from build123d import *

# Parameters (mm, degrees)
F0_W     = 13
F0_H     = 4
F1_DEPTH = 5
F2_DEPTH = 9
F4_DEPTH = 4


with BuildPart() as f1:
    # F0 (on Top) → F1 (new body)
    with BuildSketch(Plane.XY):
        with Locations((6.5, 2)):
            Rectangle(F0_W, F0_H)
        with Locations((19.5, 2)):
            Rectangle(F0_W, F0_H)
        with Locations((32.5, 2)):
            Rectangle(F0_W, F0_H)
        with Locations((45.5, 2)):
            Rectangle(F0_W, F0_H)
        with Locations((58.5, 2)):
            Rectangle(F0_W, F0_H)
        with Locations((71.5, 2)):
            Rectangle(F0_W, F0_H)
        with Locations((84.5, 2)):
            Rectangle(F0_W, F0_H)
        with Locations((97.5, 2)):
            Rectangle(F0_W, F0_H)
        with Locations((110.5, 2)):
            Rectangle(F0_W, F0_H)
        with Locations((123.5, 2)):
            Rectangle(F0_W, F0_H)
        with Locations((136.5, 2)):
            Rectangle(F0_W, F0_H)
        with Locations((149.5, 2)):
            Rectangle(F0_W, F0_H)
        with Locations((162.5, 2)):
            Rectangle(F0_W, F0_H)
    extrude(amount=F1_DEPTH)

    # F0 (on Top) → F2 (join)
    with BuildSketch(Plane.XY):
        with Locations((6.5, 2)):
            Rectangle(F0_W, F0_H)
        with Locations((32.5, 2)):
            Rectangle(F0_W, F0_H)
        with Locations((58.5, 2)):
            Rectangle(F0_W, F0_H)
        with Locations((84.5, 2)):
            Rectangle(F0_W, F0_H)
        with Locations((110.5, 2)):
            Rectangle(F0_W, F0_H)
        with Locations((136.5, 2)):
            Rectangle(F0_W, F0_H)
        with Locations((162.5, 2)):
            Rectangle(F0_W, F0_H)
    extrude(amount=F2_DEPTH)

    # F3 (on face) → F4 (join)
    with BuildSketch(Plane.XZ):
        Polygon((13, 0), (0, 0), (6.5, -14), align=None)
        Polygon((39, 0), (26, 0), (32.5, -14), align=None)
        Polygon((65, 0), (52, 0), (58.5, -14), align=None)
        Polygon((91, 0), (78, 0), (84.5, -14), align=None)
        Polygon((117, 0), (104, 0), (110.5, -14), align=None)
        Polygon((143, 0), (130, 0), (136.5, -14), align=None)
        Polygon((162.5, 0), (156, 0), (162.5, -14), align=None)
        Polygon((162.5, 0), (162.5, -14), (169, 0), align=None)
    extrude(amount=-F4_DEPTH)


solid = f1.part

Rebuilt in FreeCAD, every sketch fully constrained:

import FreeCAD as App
import Part
import Sketcher
from FreeCAD import Vector
Q = App.Units.Quantity


def add_polygon(sketch, points):
    """Adds a closed chain of lines whose ends are joined by coincident constraints."""
    first, n = sketch.GeometryCount, len(points)
    for a, b in zip(points, points[1:] + points[:1]):
        sketch.addGeometry(Part.LineSegment(App.Vector(*a, 0), App.Vector(*b, 0)), False)
    for i in range(n):
        sketch.addConstraint(Sketcher.Constraint("Coincident", first + i, 2, first + (i + 1) % n, 1))

doc = App.newDocument("Part")
params = doc.addObject("Spreadsheet::Sheet", "Params")
for row, (alias, value) in enumerate([
    ("sketch1_width", "169 mm"),
    ("sketch1_height", "4 mm"),
    ("pad1_length", "5 mm"),
    ("sketch2_width", "13 mm"),
    ("sketch2_height", "4 mm"),
    ("pad2_length", "9 mm"),
    ("sketch3_width", "13 mm"),
    ("pad3_length", "4 mm"),
], start=1):
    params.set(f"A{row}", alias)
    params.set(f"B{row}", "=" + value)
    params.setAlias(f"B{row}", alias)

body = doc.addObject("PartDesign::Body", "Body")

# Sketch on XY plane
sketch1 = doc.addObject("Sketcher::SketchObject", "Sketch")
body.addObject(sketch1)
sketch1.AttachmentSupport = (doc.XY_Plane, [""])
sketch1.MapMode = "FlatFace"
add_polygon(sketch1, [(0, 4), (0, 0), (169, 0), (169, 4)])  # lines 0-3
sketch1.addConstraint(Sketcher.Constraint("Vertical", 0))
sketch1.addConstraint(Sketcher.Constraint("Horizontal", 1))
sketch1.addConstraint(Sketcher.Constraint("Vertical", 2))
sketch1.addConstraint(Sketcher.Constraint("Horizontal", 3))
sketch1.addConstraint(Sketcher.Constraint("Coincident", 0, 2, -1, 1))
sketch1.addConstraint(Sketcher.Constraint("DistanceX", 1, 1, 1, 2, Q("169 mm")))
sketch1.addConstraint(Sketcher.Constraint("DistanceY", 0, 2, 0, 1, Q("4 mm")))
sketch1.setExpression("Constraints[9]", "Params.sketch1_width")
sketch1.setExpression("Constraints[10]", "Params.sketch1_height")
pad1 = doc.addObject("PartDesign::Pad", "Pad")
body.addObject(pad1)
pad1.Profile = sketch1
pad1.setExpression("Length", "Params.pad1_length")

# Sketch on XY plane
sketch2 = doc.addObject("Sketcher::SketchObject", "Sketch001")
body.addObject(sketch2)
sketch2.AttachmentSupport = (doc.XY_Plane, [""])
sketch2.MapMode = "FlatFace"
add_polygon(sketch2, [(0, 4), (0, 0), (13, 0), (13, 4)])  # lines 0-3
add_polygon(sketch2, [(26, 4), (26, 0), (39, 0), (39, 4)])  # lines 4-7
add_polygon(sketch2, [(52, 4), (52, 0), (65, 0), (65, 4)])  # lines 8-11
add_polygon(sketch2, [(78, 4), (78, 0), (91, 0), (91, 4)])  # lines 12-15
add_polygon(sketch2, [(104, 4), (104, 0), (117, 0), (117, 4)])  # lines 16-19
add_polygon(sketch2, [(130, 4), (130, 0), (143, 0), (143, 4)])  # lines 20-23
add_polygon(sketch2, [(156, 4), (156, 0), (169, 0), (169, 4)])  # lines 24-27
sketch2.addConstraint(Sketcher.Constraint("Vertical", 0))
sketch2.addConstraint(Sketcher.Constraint("Horizontal", 1))
sketch2.addConstraint(Sketcher.Constraint("Vertical", 2))
sketch2.addConstraint(Sketcher.Constraint("Horizontal", 3))
sketch2.addConstraint(Sketcher.Constraint("Vertical", 4))
sketch2.addConstraint(Sketcher.Constraint("Horizontal", 5))
sketch2.addConstraint(Sketcher.Constraint("Vertical", 6))
sketch2.addConstraint(Sketcher.Constraint("Horizontal", 7))
sketch2.addConstraint(Sketcher.Constraint("Vertical", 8))
sketch2.addConstraint(Sketcher.Constraint("Horizontal", 9))
sketch2.addConstraint(Sketcher.Constraint("Vertical", 10))
sketch2.addConstraint(Sketcher.Constraint("Horizontal", 11))
sketch2.addConstraint(Sketcher.Constraint("Vertical", 12))
sketch2.addConstraint(Sketcher.Constraint("Horizontal", 13))
sketch2.addConstraint(Sketcher.Constraint("Vertical", 14))
sketch2.addConstraint(Sketcher.Constraint("Horizontal", 15))
sketch2.addConstraint(Sketcher.Constraint("Vertical", 16))
sketch2.addConstraint(Sketcher.Constraint("Horizontal", 17))
sketch2.addConstraint(Sketcher.Constraint("Vertical", 18))
sketch2.addConstraint(Sketcher.Constraint("Horizontal", 19))
sketch2.addConstraint(Sketcher.Constraint("Vertical", 20))
sketch2.addConstraint(Sketcher.Constraint("Horizontal", 21))
sketch2.addConstraint(Sketcher.Constraint("Vertical", 22))
sketch2.addConstraint(Sketcher.Constraint("Horizontal", 23))
sketch2.addConstraint(Sketcher.Constraint("Vertical", 24))
sketch2.addConstraint(Sketcher.Constraint("Horizontal", 25))
sketch2.addConstraint(Sketcher.Constraint("Vertical", 26))
sketch2.addConstraint(Sketcher.Constraint("Horizontal", 27))
sketch2.addConstraint(Sketcher.Constraint("Coincident", 0, 2, -1, 1))
sketch2.addConstraint(Sketcher.Constraint("PointOnObject", 4, 2, -1))
sketch2.addConstraint(Sketcher.Constraint("PointOnObject", 8, 2, -1))
sketch2.addConstraint(Sketcher.Constraint("PointOnObject", 12, 2, -1))
sketch2.addConstraint(Sketcher.Constraint("PointOnObject", 16, 2, -1))
sketch2.addConstraint(Sketcher.Constraint("PointOnObject", 20, 2, -1))
sketch2.addConstraint(Sketcher.Constraint("PointOnObject", 24, 2, -1))
sketch2.addConstraint(Sketcher.Constraint("Horizontal", 3, 2, 6, 2))
sketch2.addConstraint(Sketcher.Constraint("Horizontal", 7, 2, 10, 2))
sketch2.addConstraint(Sketcher.Constraint("Horizontal", 11, 2, 14, 2))
sketch2.addConstraint(Sketcher.Constraint("Horizontal", 15, 2, 18, 2))
sketch2.addConstraint(Sketcher.Constraint("Horizontal", 19, 2, 22, 2))
sketch2.addConstraint(Sketcher.Constraint("Horizontal", 23, 2, 26, 2))
sketch2.addConstraint(Sketcher.Constraint("Equal", 3, 5))
sketch2.addConstraint(Sketcher.Constraint("Equal", 7, 9))
sketch2.addConstraint(Sketcher.Constraint("Equal", 11, 13))
sketch2.addConstraint(Sketcher.Constraint("Equal", 15, 17))
sketch2.addConstraint(Sketcher.Constraint("Equal", 19, 21))
sketch2.addConstraint(Sketcher.Constraint("Equal", 23, 25))
sketch2.addConstraint(Sketcher.Constraint("DistanceX", 1, 1, 1, 2, Q("13 mm")))
sketch2.addConstraint(Sketcher.Constraint("DistanceY", 0, 2, 0, 1, Q("4 mm")))
sketch2.addConstraint(Sketcher.Constraint("DistanceX", -1, 1, 4, 2, Q("26 mm")))
sketch2.addConstraint(Sketcher.Constraint("DistanceX", -1, 1, 8, 2, Q("52 mm")))
sketch2.addConstraint(Sketcher.Constraint("DistanceX", -1, 1, 12, 2, Q("78 mm")))
sketch2.addConstraint(Sketcher.Constraint("DistanceX", -1, 1, 16, 2, Q("104 mm")))
sketch2.addConstraint(Sketcher.Constraint("DistanceX", -1, 1, 20, 2, Q("130 mm")))
sketch2.addConstraint(Sketcher.Constraint("DistanceX", -1, 1, 24, 2, Q("156 mm")))
sketch2.setExpression("Constraints[75]", "Params.sketch2_width")
sketch2.setExpression("Constraints[76]", "Params.sketch2_height")
pad2 = doc.addObject("PartDesign::Pad", "Pad001")
body.addObject(pad2)
pad2.Profile = sketch2
pad2.setExpression("Length", "Params.pad2_length")

# Sketch on XZ plane
sketch3 = doc.addObject("Sketcher::SketchObject", "Sketch002")
body.addObject(sketch3)
sketch3.AttachmentSupport = (doc.XZ_Plane, [""])
sketch3.MapMode = "FlatFace"
add_polygon(sketch3, [(13, 0), (0, 0), (6, -14)])  # lines 0-2
add_polygon(sketch3, [(39, 0), (26, 0), (32, -14)])  # lines 3-5
add_polygon(sketch3, [(65, 0), (52, 0), (58, -14)])  # lines 6-8
add_polygon(sketch3, [(91, 0), (78, 0), (84, -14)])  # lines 9-11
add_polygon(sketch3, [(117, 0), (104, 0), (110, -14)])  # lines 12-14
add_polygon(sketch3, [(143, 0), (130, 0), (136, -14)])  # lines 15-17
add_polygon(sketch3, [(156, 0), (162, -14), (169, 0)])  # lines 18-20
sketch3.addConstraint(Sketcher.Constraint("Horizontal", 0))
sketch3.addConstraint(Sketcher.Constraint("Horizontal", 3))
sketch3.addConstraint(Sketcher.Constraint("Horizontal", 6))
sketch3.addConstraint(Sketcher.Constraint("Horizontal", 9))
sketch3.addConstraint(Sketcher.Constraint("Horizontal", 12))
sketch3.addConstraint(Sketcher.Constraint("Horizontal", 15))
sketch3.addConstraint(Sketcher.Constraint("Horizontal", 20))
sketch3.addConstraint(Sketcher.Constraint("Coincident", 0, 2, -1, 1))
sketch3.addConstraint(Sketcher.Constraint("PointOnObject", 3, 2, -1))
sketch3.addConstraint(Sketcher.Constraint("PointOnObject", 6, 2, -1))
sketch3.addConstraint(Sketcher.Constraint("PointOnObject", 9, 2, -1))
sketch3.addConstraint(Sketcher.Constraint("PointOnObject", 12, 2, -1))
sketch3.addConstraint(Sketcher.Constraint("PointOnObject", 15, 2, -1))
sketch3.addConstraint(Sketcher.Constraint("PointOnObject", 19, 2, -1))
sketch3.addConstraint(Sketcher.Constraint("Parallel", 1, 4))
sketch3.addConstraint(Sketcher.Constraint("Parallel", 2, 5))
sketch3.addConstraint(Sketcher.Constraint("Parallel", 4, 7))
sketch3.addConstraint(Sketcher.Constraint("Parallel", 5, 8))
sketch3.addConstraint(Sketcher.Constraint("Parallel", 7, 10))
sketch3.addConstraint(Sketcher.Constraint("Parallel", 8, 11))
sketch3.addConstraint(Sketcher.Constraint("Parallel", 10, 13))
sketch3.addConstraint(Sketcher.Constraint("Parallel", 11, 14))
sketch3.addConstraint(Sketcher.Constraint("Parallel", 13, 16))
sketch3.addConstraint(Sketcher.Constraint("Parallel", 14, 17))
sketch3.addConstraint(Sketcher.Constraint("Parallel", 16, 18))
sketch3.addConstraint(Sketcher.Constraint("Parallel", 17, 19))
sketch3.addConstraint(Sketcher.Constraint("Horizontal", 1, 2, 4, 2))
sketch3.addConstraint(Sketcher.Constraint("Horizontal", 4, 2, 7, 2))
sketch3.addConstraint(Sketcher.Constraint("Horizontal", 7, 2, 10, 2))
sketch3.addConstraint(Sketcher.Constraint("Horizontal", 10, 2, 13, 2))
sketch3.addConstraint(Sketcher.Constraint("Horizontal", 13, 2, 16, 2))
sketch3.addConstraint(Sketcher.Constraint("Horizontal", 16, 2, 18, 2))
sketch3.addConstraint(Sketcher.Constraint("Equal", 1, 2))
sketch3.addConstraint(Sketcher.Constraint("DistanceX", 0, 2, 0, 1, Q("13 mm")))
sketch3.addConstraint(Sketcher.Constraint("DistanceY", 1, 2, -1, 1, Q("14 mm")))
sketch3.addConstraint(Sketcher.Constraint("DistanceX", -1, 1, 3, 2, Q("26 mm")))
sketch3.addConstraint(Sketcher.Constraint("DistanceX", -1, 1, 6, 2, Q("52 mm")))
sketch3.addConstraint(Sketcher.Constraint("DistanceX", -1, 1, 9, 2, Q("78 mm")))
sketch3.addConstraint(Sketcher.Constraint("DistanceX", -1, 1, 12, 2, Q("104 mm")))
sketch3.addConstraint(Sketcher.Constraint("DistanceX", -1, 1, 15, 2, Q("130 mm")))
sketch3.addConstraint(Sketcher.Constraint("DistanceX", -1, 1, 19, 2, Q("169 mm")))
sketch3.setExpression("Constraints[54]", "Params.sketch3_width")
pad3 = doc.addObject("PartDesign::Pad", "Pad002")
body.addObject(pad3)
pad3.Profile = sketch3
pad3.setExpression("Length", "Params.pad3_length")
pad3.Reversed = True

doc.recompute()
